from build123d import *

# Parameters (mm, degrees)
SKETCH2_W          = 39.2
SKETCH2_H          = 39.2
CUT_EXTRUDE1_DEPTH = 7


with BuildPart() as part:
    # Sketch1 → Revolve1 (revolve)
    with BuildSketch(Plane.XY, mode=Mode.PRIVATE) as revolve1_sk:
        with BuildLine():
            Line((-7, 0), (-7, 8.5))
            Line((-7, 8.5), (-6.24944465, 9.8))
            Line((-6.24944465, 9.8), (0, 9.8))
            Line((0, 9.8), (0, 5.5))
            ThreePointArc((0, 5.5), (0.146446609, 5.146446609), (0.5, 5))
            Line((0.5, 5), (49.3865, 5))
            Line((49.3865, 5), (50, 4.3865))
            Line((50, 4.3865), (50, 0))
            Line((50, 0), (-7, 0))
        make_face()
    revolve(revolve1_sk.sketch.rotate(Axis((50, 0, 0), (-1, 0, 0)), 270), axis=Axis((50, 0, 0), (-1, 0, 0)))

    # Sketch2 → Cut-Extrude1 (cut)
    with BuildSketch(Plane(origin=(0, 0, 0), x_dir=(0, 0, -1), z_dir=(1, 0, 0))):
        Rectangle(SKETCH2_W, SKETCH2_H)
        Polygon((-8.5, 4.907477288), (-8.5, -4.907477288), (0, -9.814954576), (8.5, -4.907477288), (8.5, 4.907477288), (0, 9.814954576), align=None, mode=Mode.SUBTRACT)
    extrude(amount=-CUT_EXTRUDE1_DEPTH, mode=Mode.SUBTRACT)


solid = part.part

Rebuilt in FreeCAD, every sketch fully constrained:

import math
import FreeCAD as App
import Part
import Sketcher
Q = App.Units.Quantity


def add_polygon(sketch, points):
    """Adds a closed chain of lines whose ends are joined by coincident constraints."""
    first, n = sketch.GeometryCount, len(points)
    for a, b in zip(points, points[1:] + points[:1]):
        sketch.addGeometry(Part.LineSegment(App.Vector(*a, 0), App.Vector(*b, 0)), False)
    for i in range(n):
        sketch.addConstraint(Sketcher.Constraint("Coincident", first + i, 2, first + (i + 1) % n, 1))

doc = App.newDocument("Part")
body = doc.addObject("PartDesign::Body", "Body")

# Sketch on XY plane
sketch1 = body.newObject("Sketcher::SketchObject", "Sketch")
sketch1.AttachmentSupport = (doc.getObject("XY_Plane"), [""])
sketch1.MapMode = "FlatFace"
sketch1.addGeometry([
    Part.LineSegment(App.Vector(-7, 8.5, 0), App.Vector(-7, 0, 0)),  # 0
    Part.LineSegment(App.Vector(-7, 0, 0), App.Vector(50, 0, 0)),  # 1
    Part.LineSegment(App.Vector(50, 0, 0), App.Vector(50, 4.39, 0)),  # 2
    Part.LineSegment(App.Vector(50, 4.39, 0), App.Vector(49.39, 5, 0)),  # 3
    Part.LineSegment(App.Vector(49.39, 5, 0), App.Vector(0.5, 5, 0)),  # 4
    Part.ArcOfCircle(Part.Circle(App.Vector(0.5, 5.5, 0), App.Vector(0, 0, 1), 0.5), math.radians(180), math.radians(270)),  # 5
    Part.LineSegment(App.Vector(0, 5.5, 0), App.Vector(0, 9.8, 0)),  # 6
    Part.LineSegment(App.Vector(0, 9.8, 0), App.Vector(-6.25, 9.8, 0)),  # 7
    Part.LineSegment(App.Vector(-6.25, 9.8, 0), App.Vector(-7, 8.5, 0)),  # 8
], False)
sketch1.addConstraint([
    Sketcher.Constraint("Coincident", 0, 2, 1, 1),
    Sketcher.Constraint("Coincident", 1, 2, 2, 1),
    Sketcher.Constraint("Coincident", 2, 2, 3, 1),
    Sketcher.Constraint("Coincident", 3, 2, 4, 1),
    Sketcher.Constraint("Tangent", 4, 2, 5, 2),
    Sketcher.Constraint("Tangent", 5, 1, 6, 1),
    Sketcher.Constraint("Coincident", 6, 2, 7, 1),
    Sketcher.Constraint("Coincident", 7, 2, 8, 1),
    Sketcher.Constraint("Coincident", 8, 2, 0, 1),
    Sketcher.Constraint("Vertical", 0),
    Sketcher.Constraint("Horizontal", 1),
    Sketcher.Constraint("Vertical", 2),
    Sketcher.Constraint("Horizontal", 4),
    Sketcher.Constraint("Vertical", 6),
    Sketcher.Constraint("Horizontal", 7),
    Sketcher.Constraint("PointOnObject", 0, 2, -1),
    Sketcher.Constraint("PointOnObject", 5, 1, -2),
    Sketcher.Constraint("Radius", 5, Q("0.5 mm")),
    Sketcher.Constraint("DistanceX", 1, 1, 1, 2, Q("57 mm")),
    Sketcher.Constraint("Angle", 3, Q("135 deg")),
    Sketcher.Constraint("Angle", 8, Q("-120 deg")),
    Sketcher.Constraint("DistanceY", 0, 2, 0, 1, Q("8.5 mm")),
    Sketcher.Constraint("DistanceY", 6, 1, 6, 2, Q("4.3 mm")),
    Sketcher.Constraint("DistanceX", 0, 2, -1, 1, Q("7 mm")),
    Sketcher.Constraint("DistanceY", -1, 1, 3, 2, Q("5 mm")),
    Sketcher.Constraint("DistanceX", 4, 2, 4, 1, Q("48.8865 mm")),
])
revolution = body.newObject("PartDesign::Revolution", "Revolution")
revolution.Profile = sketch1
revolution.ReferenceAxis = (sketch1, ["H_Axis"])
revolution.Angle = 360

# Sketch on YZ plane
sketch2 = body.newObject("Sketcher::SketchObject", "Sketch001")
sketch2.AttachmentSupport = (doc.getObject("YZ_Plane"), [""])
sketch2.MapMode = "FlatFace"
add_polygon(sketch2, [(20, 20), (-20, 20), (-20, -20), (20, -20)])  # lines 0-3
add_polygon(sketch2, [(-5, 8), (5, 8), (10, 0), (5, -8), (-5, -8), (-10, 0)])  # lines 4-9
sketch2.addConstraint([
    Sketcher.Constraint("Horizontal", 0),
    Sketcher.Constraint("Vertical", 1),
    Sketcher.Constraint("Horizontal", 2),
    Sketcher.Constraint("Vertical", 3),
    Sketcher.Constraint("Horizontal", 4),
    Sketcher.Constraint("Horizontal", 7),
    Sketcher.Constraint("Symmetric", 0, 2, 2, 2, -1, 1),
    Sketcher.Constraint("Symmetric", 4, 2, 7, 2, -1, 1),
    Sketcher.Constraint("Symmetric", 5, 2, 8, 2, -1, 1),
    Sketcher.Constraint("PointOnObject", 5, 2, -1),
    Sketcher.Constraint("Parallel", 6, 9),
    Sketcher.Constraint("Vertical", 4, 2, 6, 2),
    Sketcher.Constraint("Equal", 2, 1),
    Sketcher.Constraint("Angle", 5, Q("-60 deg")),
    Sketcher.Constraint("DistanceX", 0, 2, 0, 1, Q("39.2 mm")),
    Sketcher.Constraint("DistanceY", 6, 2, 4, 2, Q("17 mm")),
    Sketcher.Constraint("DistanceX", 4, 1, 4, 2, Q("9.814955 mm")),
])
pocket1 = body.newObject("PartDesign::Pocket", "Pocket")
pocket1.Profile = sketch2
pocket1.Length = 7

doc.recompute()
